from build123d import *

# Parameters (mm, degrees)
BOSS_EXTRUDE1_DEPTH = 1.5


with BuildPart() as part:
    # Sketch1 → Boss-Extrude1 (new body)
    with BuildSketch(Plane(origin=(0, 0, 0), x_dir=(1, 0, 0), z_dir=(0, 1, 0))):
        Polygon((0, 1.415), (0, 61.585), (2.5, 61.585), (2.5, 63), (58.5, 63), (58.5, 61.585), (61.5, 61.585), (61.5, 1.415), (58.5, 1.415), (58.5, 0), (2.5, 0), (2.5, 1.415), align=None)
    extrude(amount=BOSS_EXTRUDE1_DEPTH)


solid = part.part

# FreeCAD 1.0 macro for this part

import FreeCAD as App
import Part
import Sketcher

V = App.Vector


def add_polygon(sketch, points):
    """Adds a closed chain of lines whose ends are joined by coincident constraints."""
    first, n = sketch.GeometryCount, len(points)
    for a, b in zip(points, points[1:] + points[:1]):
        sketch.addGeometry(Part.LineSegment(App.Vector(*a, 0), App.Vector(*b, 0)), False)
    for i in range(n):
        sketch.addConstraint(Sketcher.Constraint("Coincident", first + i, 2, first + (i + 1) % n, 1))

doc = App.newDocument("Part")
body = doc.addObject("PartDesign::Body", "Body")

sketch1 = body.newObject("Sketcher::SketchObject", "Sketch")
sketch1.AttachmentSupport = (doc.getObject("XZ_Plane"), [""])
sketch1.MapMode = "FlatFace"
add_polygon(sketch1, [(0, -61.6), (0, -1.4), (2.5, -1.4), (2.5, 0), (58.5, 0), (58.5, -1.4), (61.5, -1.4), (61.5, -61.6), (58.5, -61.6), (58.5, -63), (2.5, -63), (2.5, -61.6)])
sketch1.addConstraint(Sketcher.Constraint("Vertical", 0))
sketch1.addConstraint(Sketcher.Constraint("Horizontal", 1))
sketch1.addConstraint(Sketcher.Constraint("Vertical", 2))
sketch1.addConstraint(Sketcher.Constraint("Horizontal", 3))
sketch1.addConstraint(Sketcher.Constraint("Vertical", 4))
sketch1.addConstraint(Sketcher.Constraint("Horizontal", 5))
sketch1.addConstraint(Sketcher.Constraint("Vertical", 6))
sketch1.addConstraint(Sketcher.Constraint("Horizontal", 7))
sketch1.addConstraint(Sketcher.Constraint("Vertical", 8))
sketch1.addConstraint(Sketcher.Constraint("Horizontal", 9))
sketch1.addConstraint(Sketcher.Constraint("Vertical", 10))
sketch1.addConstraint(Sketcher.Constraint("Horizontal", 11))
sketch1.addConstraint(Sketcher.Constraint("PointOnObject", 0, 2, -2))
sketch1.addConstraint(Sketcher.Constraint("PointOnObject", 2, 2, -1))
sketch1.addConstraint(Sketcher.Constraint("Horizontal", 1, 2, 4, 2))
sketch1.addConstraint(Sketcher.Constraint("Horizontal", 7, 2, 10, 2))
sketch1.addConstraint(Sketcher.Constraint("Vertical", 4, 2, 7, 2))
sketch1.addConstraint(Sketcher.Constraint("Vertical", 2, 2, 9, 2))
sketch1.addConstraint(Sketcher.Constraint("Equal", 4, 8))
sketch1.addConstraint(Sketcher.Constraint("DistanceX", 3, 1, 3, 2, 56.0))
sketch1.addConstraint(Sketcher.Constraint("DistanceX", 5, 1, 5, 2, 3.0))
sketch1.addConstraint(Sketcher.Constraint("DistanceX", 1, 1, 1, 2, 2.5))
sketch1.addConstraint(Sketcher.Constraint("DistanceY", 8, 2, -1, 1, 63.0))
sketch1.addConstraint(Sketcher.Constraint("DistanceY", 0, 1, 0, 2, 60.17))
pad1 = body.newObject("PartDesign::Pad", "Pad")
pad1.Profile = sketch1
pad1.Length = 1.5
pad1.Reversed = True

doc.recompute()
